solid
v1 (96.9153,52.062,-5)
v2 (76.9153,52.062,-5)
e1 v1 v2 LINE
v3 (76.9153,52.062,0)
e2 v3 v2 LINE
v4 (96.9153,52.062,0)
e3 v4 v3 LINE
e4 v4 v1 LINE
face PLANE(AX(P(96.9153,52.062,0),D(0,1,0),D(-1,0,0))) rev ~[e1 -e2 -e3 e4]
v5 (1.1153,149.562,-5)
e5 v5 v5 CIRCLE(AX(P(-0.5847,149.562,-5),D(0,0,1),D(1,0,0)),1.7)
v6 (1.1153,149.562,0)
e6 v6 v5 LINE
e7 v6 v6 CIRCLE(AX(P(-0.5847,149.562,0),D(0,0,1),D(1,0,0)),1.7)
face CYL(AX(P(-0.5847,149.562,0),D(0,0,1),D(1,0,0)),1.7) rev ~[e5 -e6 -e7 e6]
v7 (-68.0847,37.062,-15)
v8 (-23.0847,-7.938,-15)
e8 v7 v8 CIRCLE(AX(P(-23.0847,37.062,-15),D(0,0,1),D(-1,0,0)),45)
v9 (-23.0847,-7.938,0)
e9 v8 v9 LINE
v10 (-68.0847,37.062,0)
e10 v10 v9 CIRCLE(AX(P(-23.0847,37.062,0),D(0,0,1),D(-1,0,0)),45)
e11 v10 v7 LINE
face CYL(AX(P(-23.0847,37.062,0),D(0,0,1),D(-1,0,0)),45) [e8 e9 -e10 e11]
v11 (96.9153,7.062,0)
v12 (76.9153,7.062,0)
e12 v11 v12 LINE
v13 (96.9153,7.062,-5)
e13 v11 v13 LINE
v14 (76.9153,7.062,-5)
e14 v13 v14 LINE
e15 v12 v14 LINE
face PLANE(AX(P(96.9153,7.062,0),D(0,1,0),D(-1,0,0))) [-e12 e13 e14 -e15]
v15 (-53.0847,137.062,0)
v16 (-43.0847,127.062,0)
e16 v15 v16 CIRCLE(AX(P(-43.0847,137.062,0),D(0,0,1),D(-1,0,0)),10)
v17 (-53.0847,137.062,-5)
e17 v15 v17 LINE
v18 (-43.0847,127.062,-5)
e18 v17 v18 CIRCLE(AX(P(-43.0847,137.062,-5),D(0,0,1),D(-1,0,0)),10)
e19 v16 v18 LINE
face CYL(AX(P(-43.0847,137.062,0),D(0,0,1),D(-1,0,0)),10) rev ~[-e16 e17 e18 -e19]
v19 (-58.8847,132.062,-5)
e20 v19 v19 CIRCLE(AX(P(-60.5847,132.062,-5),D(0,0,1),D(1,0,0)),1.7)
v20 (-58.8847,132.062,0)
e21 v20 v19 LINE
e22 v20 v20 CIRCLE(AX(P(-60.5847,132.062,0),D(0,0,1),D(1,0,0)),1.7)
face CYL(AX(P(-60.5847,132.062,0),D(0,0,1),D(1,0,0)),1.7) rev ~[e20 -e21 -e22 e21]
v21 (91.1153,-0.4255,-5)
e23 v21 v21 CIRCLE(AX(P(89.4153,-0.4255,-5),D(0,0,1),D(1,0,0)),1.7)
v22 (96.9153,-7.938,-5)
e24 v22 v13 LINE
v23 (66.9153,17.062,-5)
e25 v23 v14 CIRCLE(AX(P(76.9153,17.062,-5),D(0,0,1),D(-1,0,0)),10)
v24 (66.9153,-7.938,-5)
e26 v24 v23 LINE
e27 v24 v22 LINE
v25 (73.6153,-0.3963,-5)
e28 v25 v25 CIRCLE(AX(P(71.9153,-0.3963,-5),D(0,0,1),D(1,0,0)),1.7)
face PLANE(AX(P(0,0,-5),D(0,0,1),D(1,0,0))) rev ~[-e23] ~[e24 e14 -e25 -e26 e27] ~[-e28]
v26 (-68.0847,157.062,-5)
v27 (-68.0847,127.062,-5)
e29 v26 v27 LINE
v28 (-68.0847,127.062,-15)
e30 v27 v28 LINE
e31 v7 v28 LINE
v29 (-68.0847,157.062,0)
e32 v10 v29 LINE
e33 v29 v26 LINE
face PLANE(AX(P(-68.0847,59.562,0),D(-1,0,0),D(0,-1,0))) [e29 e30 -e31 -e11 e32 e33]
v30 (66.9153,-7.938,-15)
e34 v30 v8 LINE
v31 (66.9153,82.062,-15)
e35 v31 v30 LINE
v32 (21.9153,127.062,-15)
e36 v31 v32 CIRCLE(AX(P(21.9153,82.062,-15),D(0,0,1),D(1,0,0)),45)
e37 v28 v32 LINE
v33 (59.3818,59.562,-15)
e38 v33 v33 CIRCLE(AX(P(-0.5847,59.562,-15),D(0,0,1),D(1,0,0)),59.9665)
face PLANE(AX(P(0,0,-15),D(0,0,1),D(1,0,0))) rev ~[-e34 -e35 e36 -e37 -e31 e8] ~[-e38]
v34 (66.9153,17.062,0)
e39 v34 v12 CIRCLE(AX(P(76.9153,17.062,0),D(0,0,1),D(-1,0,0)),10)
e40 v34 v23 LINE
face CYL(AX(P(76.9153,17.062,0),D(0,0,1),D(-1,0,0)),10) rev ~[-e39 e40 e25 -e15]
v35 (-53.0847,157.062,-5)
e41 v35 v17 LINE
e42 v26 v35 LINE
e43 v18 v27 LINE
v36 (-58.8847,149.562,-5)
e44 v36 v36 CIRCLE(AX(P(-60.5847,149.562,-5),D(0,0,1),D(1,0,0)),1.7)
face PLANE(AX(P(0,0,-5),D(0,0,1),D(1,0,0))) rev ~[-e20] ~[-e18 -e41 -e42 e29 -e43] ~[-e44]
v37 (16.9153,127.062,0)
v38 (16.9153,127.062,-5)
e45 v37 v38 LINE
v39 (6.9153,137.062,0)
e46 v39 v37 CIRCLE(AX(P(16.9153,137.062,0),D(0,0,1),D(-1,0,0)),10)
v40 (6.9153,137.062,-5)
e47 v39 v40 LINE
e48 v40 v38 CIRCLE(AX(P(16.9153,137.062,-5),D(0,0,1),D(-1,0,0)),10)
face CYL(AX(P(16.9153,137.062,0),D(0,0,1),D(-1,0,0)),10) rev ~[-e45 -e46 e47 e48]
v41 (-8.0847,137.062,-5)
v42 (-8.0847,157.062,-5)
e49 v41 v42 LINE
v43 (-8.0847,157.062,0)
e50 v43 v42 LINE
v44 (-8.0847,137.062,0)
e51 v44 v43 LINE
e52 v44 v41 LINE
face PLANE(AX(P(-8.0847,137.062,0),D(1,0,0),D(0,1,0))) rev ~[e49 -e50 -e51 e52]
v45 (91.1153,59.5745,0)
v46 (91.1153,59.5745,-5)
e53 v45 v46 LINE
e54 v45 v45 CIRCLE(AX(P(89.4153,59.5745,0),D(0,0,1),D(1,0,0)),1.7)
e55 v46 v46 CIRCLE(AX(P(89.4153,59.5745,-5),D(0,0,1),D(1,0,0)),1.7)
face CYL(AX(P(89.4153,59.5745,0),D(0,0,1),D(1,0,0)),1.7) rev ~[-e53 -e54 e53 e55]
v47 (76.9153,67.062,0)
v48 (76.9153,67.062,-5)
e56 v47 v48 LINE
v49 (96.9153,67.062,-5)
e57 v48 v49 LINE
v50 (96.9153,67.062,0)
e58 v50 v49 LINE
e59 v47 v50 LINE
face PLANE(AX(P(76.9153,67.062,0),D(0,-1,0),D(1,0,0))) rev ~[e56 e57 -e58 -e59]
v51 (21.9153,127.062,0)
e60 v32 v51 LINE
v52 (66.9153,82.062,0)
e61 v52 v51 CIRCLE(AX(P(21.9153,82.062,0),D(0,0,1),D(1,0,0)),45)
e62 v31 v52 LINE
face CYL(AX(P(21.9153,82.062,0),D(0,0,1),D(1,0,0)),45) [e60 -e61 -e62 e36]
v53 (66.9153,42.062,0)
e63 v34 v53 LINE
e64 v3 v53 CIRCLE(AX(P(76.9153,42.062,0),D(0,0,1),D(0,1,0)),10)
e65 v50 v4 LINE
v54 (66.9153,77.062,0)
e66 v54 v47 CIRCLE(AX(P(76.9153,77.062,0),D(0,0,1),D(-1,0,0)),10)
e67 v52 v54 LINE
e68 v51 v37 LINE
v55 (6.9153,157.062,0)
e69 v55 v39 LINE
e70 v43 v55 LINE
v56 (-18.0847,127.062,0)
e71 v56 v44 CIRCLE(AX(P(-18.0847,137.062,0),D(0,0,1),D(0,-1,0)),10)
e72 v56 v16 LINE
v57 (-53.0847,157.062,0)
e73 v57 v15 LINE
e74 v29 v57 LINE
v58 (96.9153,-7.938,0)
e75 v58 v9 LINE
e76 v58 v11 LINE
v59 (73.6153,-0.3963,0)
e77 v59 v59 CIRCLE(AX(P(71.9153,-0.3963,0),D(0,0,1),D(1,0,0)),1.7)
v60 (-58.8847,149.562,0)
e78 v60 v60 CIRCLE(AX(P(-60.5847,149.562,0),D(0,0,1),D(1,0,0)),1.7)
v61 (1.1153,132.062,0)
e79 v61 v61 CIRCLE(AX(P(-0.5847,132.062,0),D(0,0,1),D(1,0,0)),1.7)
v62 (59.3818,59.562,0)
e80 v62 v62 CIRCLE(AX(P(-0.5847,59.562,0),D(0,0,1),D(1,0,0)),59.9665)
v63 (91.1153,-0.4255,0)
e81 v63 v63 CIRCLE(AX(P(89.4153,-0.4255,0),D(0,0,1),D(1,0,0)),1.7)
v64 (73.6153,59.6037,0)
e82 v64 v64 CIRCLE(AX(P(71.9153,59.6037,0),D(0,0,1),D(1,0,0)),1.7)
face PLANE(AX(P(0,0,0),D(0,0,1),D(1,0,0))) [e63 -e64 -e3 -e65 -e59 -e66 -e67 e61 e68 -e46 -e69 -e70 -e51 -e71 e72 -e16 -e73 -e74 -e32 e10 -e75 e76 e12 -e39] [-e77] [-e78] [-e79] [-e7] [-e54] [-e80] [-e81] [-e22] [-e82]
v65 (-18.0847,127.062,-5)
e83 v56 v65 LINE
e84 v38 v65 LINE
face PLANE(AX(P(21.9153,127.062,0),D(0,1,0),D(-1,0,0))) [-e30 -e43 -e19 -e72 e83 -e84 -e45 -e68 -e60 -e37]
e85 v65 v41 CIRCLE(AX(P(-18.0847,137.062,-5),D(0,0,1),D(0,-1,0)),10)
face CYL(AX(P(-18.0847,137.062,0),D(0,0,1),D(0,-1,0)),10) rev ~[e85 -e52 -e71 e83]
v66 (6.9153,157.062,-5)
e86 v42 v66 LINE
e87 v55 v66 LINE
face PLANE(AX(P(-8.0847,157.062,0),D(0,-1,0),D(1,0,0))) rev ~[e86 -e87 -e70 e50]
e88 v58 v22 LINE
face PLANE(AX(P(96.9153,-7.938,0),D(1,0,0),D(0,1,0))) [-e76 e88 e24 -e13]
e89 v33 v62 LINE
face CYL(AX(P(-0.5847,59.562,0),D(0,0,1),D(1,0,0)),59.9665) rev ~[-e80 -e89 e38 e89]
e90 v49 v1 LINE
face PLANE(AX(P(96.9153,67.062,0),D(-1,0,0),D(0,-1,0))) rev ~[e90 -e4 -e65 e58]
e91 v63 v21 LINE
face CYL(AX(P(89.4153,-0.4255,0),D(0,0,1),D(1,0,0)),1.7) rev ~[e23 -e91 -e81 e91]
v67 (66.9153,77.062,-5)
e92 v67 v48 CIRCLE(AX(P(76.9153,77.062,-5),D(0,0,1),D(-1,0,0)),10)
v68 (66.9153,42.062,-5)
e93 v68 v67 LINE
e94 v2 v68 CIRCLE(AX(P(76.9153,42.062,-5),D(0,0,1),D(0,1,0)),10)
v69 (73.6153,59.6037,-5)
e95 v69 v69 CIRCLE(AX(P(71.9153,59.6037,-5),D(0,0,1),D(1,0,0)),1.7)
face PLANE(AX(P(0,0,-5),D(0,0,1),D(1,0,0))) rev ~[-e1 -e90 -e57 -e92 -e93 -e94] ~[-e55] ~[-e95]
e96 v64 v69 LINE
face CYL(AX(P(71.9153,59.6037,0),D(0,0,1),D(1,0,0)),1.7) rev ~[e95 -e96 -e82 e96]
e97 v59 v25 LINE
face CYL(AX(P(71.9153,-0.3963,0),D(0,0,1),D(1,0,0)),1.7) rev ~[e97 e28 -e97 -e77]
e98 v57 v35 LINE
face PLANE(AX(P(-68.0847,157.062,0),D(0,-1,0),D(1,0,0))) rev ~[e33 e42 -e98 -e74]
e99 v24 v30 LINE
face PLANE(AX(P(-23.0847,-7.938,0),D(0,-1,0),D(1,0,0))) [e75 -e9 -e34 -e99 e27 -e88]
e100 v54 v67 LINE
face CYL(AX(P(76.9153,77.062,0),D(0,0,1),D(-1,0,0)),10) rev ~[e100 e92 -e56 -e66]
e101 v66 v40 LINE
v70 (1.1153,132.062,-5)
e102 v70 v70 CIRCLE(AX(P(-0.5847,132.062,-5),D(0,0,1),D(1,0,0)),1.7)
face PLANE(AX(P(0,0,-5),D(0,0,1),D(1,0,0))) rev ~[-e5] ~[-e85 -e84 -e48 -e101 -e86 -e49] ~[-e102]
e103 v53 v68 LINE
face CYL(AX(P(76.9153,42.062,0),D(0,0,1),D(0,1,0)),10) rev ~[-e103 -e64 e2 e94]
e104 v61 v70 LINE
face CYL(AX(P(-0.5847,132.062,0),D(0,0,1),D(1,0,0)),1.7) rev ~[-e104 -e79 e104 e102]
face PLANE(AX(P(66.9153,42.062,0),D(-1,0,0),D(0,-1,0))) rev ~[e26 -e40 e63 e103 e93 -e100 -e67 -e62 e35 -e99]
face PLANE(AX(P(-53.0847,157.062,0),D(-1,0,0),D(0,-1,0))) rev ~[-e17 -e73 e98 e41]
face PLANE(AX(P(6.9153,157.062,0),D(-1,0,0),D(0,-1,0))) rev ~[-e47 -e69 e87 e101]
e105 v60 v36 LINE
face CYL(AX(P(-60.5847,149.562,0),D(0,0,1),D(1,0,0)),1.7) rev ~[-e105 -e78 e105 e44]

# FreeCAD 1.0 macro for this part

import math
import FreeCAD as App
import Part
import Sketcher

V = App.Vector

doc = App.newDocument("Part")
body = doc.addObject("PartDesign::Body", "Body")

# Sketch on XY plane
sketch1 = doc.addObject("Sketcher::SketchObject", "Sketch")
body.addObject(sketch1)
sketch1.AttachmentSupport = (doc.XY_Plane, [""])
sketch1.MapMode = "FlatFace"
sketch1.addGeometry([
    Part.ArcOfCircle(Part.Circle(V(-23.1, 37.1, 0), V(0, 0, 1), 45), math.radians(180), math.radians(270)),  # 0
    Part.LineSegment(V(-23.1, -7.9, 0), V(96.9, -7.9, 0)),  # 1
    Part.LineSegment(V(96.9, -7.9, 0), V(96.9, 7.1, 0)),  # 2
    Part.LineSegment(V(96.9, 7.1, 0), V(76.9, 7.1, 0)),  # 3
    Part.ArcOfCircle(Part.Circle(V(76.9, 17.1, 0), V(0, 0, 1), 10), math.radians(180), math.radians(270)),  # 4
    Part.LineSegment(V(66.9, 17.1, 0), V(66.9, 42.1, 0)),  # 5
    Part.ArcOfCircle(Part.Circle(V(76.9, 42.1, 0), V(0, 0, 1), 10), math.radians(90), math.radians(180)),  # 6
    Part.LineSegment(V(76.9, 52.1, 0), V(96.9, 52.1, 0)),  # 7
    Part.LineSegment(V(96.9, 52.1, 0), V(96.9, 67.1, 0)),  # 8
    Part.LineSegment(V(96.9, 67.1, 0), V(76.9, 67.1, 0)),  # 9
    Part.ArcOfCircle(Part.Circle(V(76.9, 77.1, 0), V(0, 0, 1), 10), math.radians(180), math.radians(270)),  # 10
    Part.LineSegment(V(66.9, 77.1, 0), V(66.9, 82.1, 0)),  # 11
    Part.ArcOfCircle(Part.Circle(V(21.9, 82.1, 0), V(0, 0, 1), 45), math.radians(0), math.radians(90)),  # 12
    Part.LineSegment(V(21.9, 127.1, 0), V(16.9, 127.1, 0)),  # 13
    Part.ArcOfCircle(Part.Circle(V(16.9, 137.1, 0), V(0, 0, 1), 10), math.radians(180), math.radians(270)),  # 14
    Part.LineSegment(V(6.9, 137.1, 0), V(6.9, 157.1, 0)),  # 15
    Part.LineSegment(V(6.9, 157.1, 0), V(-8.1, 157.1, 0)),  # 16
    Part.LineSegment(V(-8.1, 157.1, 0), V(-8.1, 137.1, 0)),  # 17
    Part.ArcOfCircle(Part.Circle(V(-18.1, 137.1, 0), V(0, 0, 1), 10), math.radians(-90), math.radians(0)),  # 18
    Part.LineSegment(V(-18.1, 127.1, 0), V(-43.1, 127.1, 0)),  # 19
    Part.ArcOfCircle(Part.Circle(V(-43.1, 137.1, 0), V(0, 0, 1), 10), math.radians(180), math.radians(270)),  # 20
    Part.LineSegment(V(-53.1, 137.1, 0), V(-53.1, 157.1, 0)),  # 21
    Part.LineSegment(V(-53.1, 157.1, 0), V(-68.1, 157.1, 0)),  # 22
    Part.LineSegment(V(-68.1, 157.1, 0), V(-68.1, 37.1, 0)),  # 23
    Part.Circle(V(-0.6, 59.6, 0), V(0, 0, 1), 60),  # 24
    Part.Circle(V(-0.6, 132.1, 0), V(0, 0, 1), 1.7),  # 25
    Part.Circle(V(-0.6, 149.6, 0), V(0, 0, 1), 1.7),  # 26
    Part.Circle(V(71.9, 59.6, 0), V(0, 0, 1), 1.7),  # 27
    Part.Circle(V(89.4, 59.6, 0), V(0, 0, 1), 1.7),  # 28
    Part.Circle(V(-60.6, 149.6, 0), V(0, 0, 1), 1.7),  # 29
    Part.Circle(V(-60.6, 132.1, 0), V(0, 0, 1), 1.7),  # 30
    Part.Circle(V(89.4, -0.4, 0), V(0, 0, 1), 1.7),  # 31
    Part.Circle(V(71.9, -0.4, 0), V(0, 0, 1), 1.7),  # 32
], False)
sketch1.addConstraint([
    Sketcher.Constraint("Tangent", 0, 2, 1, 1),
    Sketcher.Constraint("Coincident", 1, 2, 2, 1),
    Sketcher.Constraint("Coincident", 2, 2, 3, 1),
    Sketcher.Constraint("Tangent", 3, 2, 4, 2),
    Sketcher.Constraint("Tangent", 4, 1, 5, 1),
    Sketcher.Constraint("Tangent", 5, 2, 6, 2),
    Sketcher.Constraint("Tangent", 6, 1, 7, 1),
    Sketcher.Constraint("Coincident", 7, 2, 8, 1),
    Sketcher.Constraint("Coincident", 8, 2, 9, 1),
    Sketcher.Constraint("Tangent", 9, 2, 10, 2),
    Sketcher.Constraint("Tangent", 10, 1, 11, 1),
    Sketcher.Constraint("Tangent", 11, 2, 12, 1),
    Sketcher.Constraint("Tangent", 12, 2, 13, 1),
    Sketcher.Constraint("Tangent", 13, 2, 14, 2),
    Sketcher.Constraint("Tangent", 14, 1, 15, 1),
    Sketcher.Constraint("Coincident", 15, 2, 16, 1),
    Sketcher.Constraint("Coincident", 16, 2, 17, 1),
    Sketcher.Constraint("Tangent", 17, 2, 18, 2),
    Sketcher.Constraint("Tangent", 18, 1, 19, 1),
    Sketcher.Constraint("Tangent", 19, 2, 20, 2),
    Sketcher.Constraint("Tangent", 20, 1, 21, 1),
    Sketcher.Constraint("Coincident", 21, 2, 22, 1),
    Sketcher.Constraint("Coincident", 22, 2, 23, 1),
    Sketcher.Constraint("Tangent", 23, 2, 0, 1),
    Sketcher.Constraint("Horizontal", 1),
    Sketcher.Constraint("Vertical", 2),
    Sketcher.Constraint("Horizontal", 3),
    Sketcher.Constraint("Vertical", 5),
    Sketcher.Constraint("Horizontal", 7),
    Sketcher.Constraint("Vertical", 8),
    Sketcher.Constraint("Horizontal", 9),
    Sketcher.Constraint("Vertical", 11),
    Sketcher.Constraint("Horizontal", 13),
    Sketcher.Constraint("Vertical", 15),
    Sketcher.Constraint("Horizontal", 16),
    Sketcher.Constraint("Vertical", 17),
    Sketcher.Constraint("Horizontal", 19),
    Sketcher.Constraint("Vertical", 21),
    Sketcher.Constraint("Horizontal", 22),
    Sketcher.Constraint("Vertical", 23),
    Sketcher.Constraint("Equal", 4, 6),
    Sketcher.Constraint("Equal", 6, 10),
    Sketcher.Constraint("Equal", 0, 12),
    Sketcher.Constraint("Equal", 10, 14),
    Sketcher.Constraint("Equal", 14, 18),
    Sketcher.Constraint("Equal", 18, 20),
    Sketcher.Constraint("Equal", 25, 26),
    Sketcher.Constraint("Equal", 26, 27),
    Sketcher.Constraint("Equal", 27, 28),
    Sketcher.Constraint("Equal", 28, 29),
    Sketcher.Constraint("Equal", 29, 30),
    Sketcher.Constraint("Equal", 30, 31),
    Sketcher.Constraint("Equal", 31, 32),
    Sketcher.Constraint("Horizontal", 14, 3, 18, 3),
    Sketcher.Constraint("Horizontal", 26, 3, 29, 3),
    Sketcher.Constraint("Horizontal", 25, 3, 30, 3),
    Sketcher.Constraint("Horizontal", 16, 2, 21, 2),
    Sketcher.Constraint("Vertical", 6, 3, 10, 3),
    Sketcher.Constraint("Vertical", 24, 3, 25, 3),
    Sketcher.Constraint("Vertical", 25, 3, 26, 3),
    Sketcher.Constraint("Vertical", 29, 3, 30, 3),
    Sketcher.Constraint("Vertical", 28, 3, 31, 3),
    Sketcher.Constraint("Vertical", 27, 3, 32, 3),
    Sketcher.Constraint("Vertical", 2, 2, 7, 2),
    Sketcher.Constraint("Equal", 16, 22),
    Sketcher.Constraint("Equal", 22, 2),
    Sketcher.Constraint("Equal", 19, 5),
    Sketcher.Constraint("Equal", 2, 8),
    Sketcher.Constraint("Equal", 13, 11),
    Sketcher.Constraint("Equal", 9, 15),
    Sketcher.Constraint("Radius", 0, 45.0),
    Sketcher.Constraint("Radius", 4, 10.0),
    Sketcher.Constraint("Diameter", 25, 3.4),
    Sketcher.Constraint("DistanceX", 16, 2, 16, 1, 15.0),
    Sketcher.Constraint("DistanceX", 19, 2, 19, 1, 25.0),
    Sketcher.Constraint("Diameter", 24, 119.933),
    Sketcher.Constraint("DistanceX", 0, 3, 12, 3, 45.0),
    Sketcher.Constraint("DistanceX", 32, 3, 1, 2, 25.0),
    Sketcher.Constraint("DistanceX", 5, 2, 7, 2, 30.0),
    Sketcher.Constraint("DistanceY", 25, 3, 15, 2, 25.0),
    Sketcher.Constraint("DistanceX", 31, 3, 1, 2, 7.5),
    Sketcher.Constraint("DistanceX", 25, 3, 14, 1, 7.5),
    Sketcher.Constraint("DistanceY", 26, 3, 15, 2, 7.5),
    Sketcher.Constraint("DistanceX", 30, 3, 20, 1, 7.5),
    Sketcher.Constraint("DistanceY", 31, 3, 28, 3, 60.0),
    Sketcher.Constraint("DistanceY", 32, 3, 27, 3, 60.0),
    Sketcher.Constraint("DistanceY", 0, 3, 24, 3, 22.5),
    Sketcher.Constraint("DistanceY", -1, 1, 0, 3, 37.062),
    Sketcher.Constraint("DistanceX", 0, 3, -1, 1, 23.0847),
    Sketcher.Constraint("DistanceY", -1, 1, 27, 3, 59.6037),
    Sketcher.Constraint("DistanceY", -1, 1, 28, 3, 59.5745),
])
pad1 = doc.addObject("PartDesign::Pad", "Pad")
body.addObject(pad1)
pad1.Profile = sketch1
pad1.Length = 5
pad1.Reversed = True

# Sketch on XY plane
sketch2 = doc.addObject("Sketcher::SketchObject", "Sketch001")
body.addObject(sketch2)
sketch2.AttachmentSupport = (doc.XY_Plane, [""])
sketch2.MapMode = "FlatFace"
sketch2.AttachmentOffset = App.Placement(V(0, 0, -5), App.Rotation())
sketch2.addGeometry([
    Part.ArcOfCircle(Part.Circle(V(22, 82, 0), V(0, 0, 1), 45), math.radians(0), math.radians(90)),  # 0
    Part.LineSegment(V(22, 127, 0), V(-68, 127, 0)),  # 1
    Part.LineSegment(V(-68, 127, 0), V(-68, 37, 0)),  # 2
    Part.ArcOfCircle(Part.Circle(V(-23, 37, 0), V(0, 0, 1), 45), math.radians(180), math.radians(270)),  # 3
    Part.LineSegment(V(-23, -8, 0), V(67, -8, 0)),  # 4
    Part.LineSegment(V(67, -8, 0), V(67, 82, 0)),  # 5
    Part.Circle(V(-1, 60, 0), V(0, 0, 1), 60),  # 6
], False)
sketch2.addConstraint([
    Sketcher.Constraint("Tangent", 0, 2, 1, 1),
    Sketcher.Constraint("Coincident", 1, 2, 2, 1),
    Sketcher.Constraint("Tangent", 2, 2, 3, 1),
    Sketcher.Constraint("Tangent", 3, 2, 4, 1),
    Sketcher.Constraint("Coincident", 4, 2, 5, 1),
    Sketcher.Constraint("Tangent", 5, 2, 0, 1),
    Sketcher.Constraint("Horizontal", 1),
    Sketcher.Constraint("Vertical", 2),
    Sketcher.Constraint("Horizontal", 4),
    Sketcher.Constraint("Vertical", 5),
    Sketcher.Constraint("Equal", 0, 3),
    Sketcher.Constraint("Equal", 4, 2),
    Sketcher.Constraint("Radius", 0, 45.0),
    Sketcher.Constraint("DistanceX", 1, 2, 1, 1, 90.0),
    Sketcher.Constraint("Diameter", 6, 119.933),
    Sketcher.Constraint("DistanceX", 6, 3, 0, 3, 22.5),
    Sketcher.Constraint("DistanceY", 6, 3, 0, 3, 22.5),
    Sketcher.Constraint("DistanceY", -1, 1, 0, 3, 82.062),
    Sketcher.Constraint("DistanceX", -1, 1, 0, 3, 21.9153),
])
pad2 = doc.addObject("PartDesign::Pad", "Pad001")
body.addObject(pad2)
pad2.Profile = sketch2
pad2.Length = 10
pad2.Reversed = True

doc.recompute()
